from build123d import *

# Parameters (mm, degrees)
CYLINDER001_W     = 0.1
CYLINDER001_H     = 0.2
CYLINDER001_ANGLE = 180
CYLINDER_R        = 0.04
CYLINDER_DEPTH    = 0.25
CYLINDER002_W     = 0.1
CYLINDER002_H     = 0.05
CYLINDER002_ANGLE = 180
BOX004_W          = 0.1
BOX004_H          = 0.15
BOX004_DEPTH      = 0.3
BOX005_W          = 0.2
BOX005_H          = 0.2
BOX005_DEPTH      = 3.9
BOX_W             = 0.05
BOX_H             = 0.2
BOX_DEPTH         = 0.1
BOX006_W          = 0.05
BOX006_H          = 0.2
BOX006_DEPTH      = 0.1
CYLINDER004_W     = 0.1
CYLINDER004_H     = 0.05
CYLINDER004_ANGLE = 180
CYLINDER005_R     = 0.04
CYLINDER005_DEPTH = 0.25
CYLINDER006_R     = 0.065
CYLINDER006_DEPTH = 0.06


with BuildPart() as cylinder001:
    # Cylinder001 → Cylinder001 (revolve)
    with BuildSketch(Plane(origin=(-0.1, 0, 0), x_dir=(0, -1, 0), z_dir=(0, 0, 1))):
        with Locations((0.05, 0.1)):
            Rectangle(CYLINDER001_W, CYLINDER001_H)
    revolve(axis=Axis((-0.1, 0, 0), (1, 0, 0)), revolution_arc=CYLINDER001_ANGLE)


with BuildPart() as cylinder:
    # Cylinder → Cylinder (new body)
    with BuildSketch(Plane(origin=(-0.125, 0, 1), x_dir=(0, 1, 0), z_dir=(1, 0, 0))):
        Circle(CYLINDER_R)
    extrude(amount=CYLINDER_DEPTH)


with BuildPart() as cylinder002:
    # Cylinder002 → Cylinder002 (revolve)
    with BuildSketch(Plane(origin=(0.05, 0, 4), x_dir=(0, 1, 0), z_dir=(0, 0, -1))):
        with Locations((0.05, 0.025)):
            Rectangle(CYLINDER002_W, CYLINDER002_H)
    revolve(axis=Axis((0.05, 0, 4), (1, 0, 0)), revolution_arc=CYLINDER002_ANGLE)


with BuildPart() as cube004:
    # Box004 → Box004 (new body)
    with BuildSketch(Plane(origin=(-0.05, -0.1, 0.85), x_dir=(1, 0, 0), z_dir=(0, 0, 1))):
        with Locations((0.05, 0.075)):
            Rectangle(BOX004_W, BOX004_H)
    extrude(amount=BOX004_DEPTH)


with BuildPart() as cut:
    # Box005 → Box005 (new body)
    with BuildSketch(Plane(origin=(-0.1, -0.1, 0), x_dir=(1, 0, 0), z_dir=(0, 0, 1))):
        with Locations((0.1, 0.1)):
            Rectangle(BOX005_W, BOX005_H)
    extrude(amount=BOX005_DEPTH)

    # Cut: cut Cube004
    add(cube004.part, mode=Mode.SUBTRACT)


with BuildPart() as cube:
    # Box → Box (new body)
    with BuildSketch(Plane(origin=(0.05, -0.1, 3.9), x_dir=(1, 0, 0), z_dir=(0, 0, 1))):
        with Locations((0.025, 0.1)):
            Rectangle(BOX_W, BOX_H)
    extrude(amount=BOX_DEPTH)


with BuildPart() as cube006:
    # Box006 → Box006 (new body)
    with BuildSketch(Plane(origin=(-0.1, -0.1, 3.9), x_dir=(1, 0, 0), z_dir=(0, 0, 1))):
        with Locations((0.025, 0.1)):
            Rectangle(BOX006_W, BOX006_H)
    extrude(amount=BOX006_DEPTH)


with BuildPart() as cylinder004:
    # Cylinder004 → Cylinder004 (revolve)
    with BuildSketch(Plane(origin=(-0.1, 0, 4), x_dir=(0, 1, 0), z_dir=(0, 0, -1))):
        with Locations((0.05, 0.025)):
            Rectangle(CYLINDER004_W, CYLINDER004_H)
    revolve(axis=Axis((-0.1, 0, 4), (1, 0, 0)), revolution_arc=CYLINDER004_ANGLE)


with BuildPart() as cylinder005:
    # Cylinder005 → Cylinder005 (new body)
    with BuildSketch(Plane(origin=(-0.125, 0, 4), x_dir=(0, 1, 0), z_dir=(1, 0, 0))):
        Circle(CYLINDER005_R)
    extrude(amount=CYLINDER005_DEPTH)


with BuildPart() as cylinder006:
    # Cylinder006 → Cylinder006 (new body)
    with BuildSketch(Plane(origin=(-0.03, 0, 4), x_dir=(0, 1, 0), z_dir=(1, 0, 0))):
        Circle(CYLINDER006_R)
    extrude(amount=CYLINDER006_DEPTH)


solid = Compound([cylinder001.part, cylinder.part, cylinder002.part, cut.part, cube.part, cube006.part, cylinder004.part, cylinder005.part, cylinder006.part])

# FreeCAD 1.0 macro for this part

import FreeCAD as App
import Part
import Sketcher

doc = App.newDocument("Part")
body = doc.addObject("PartDesign::Body", "Body")

sketch1 = body.newObject("Sketcher::SketchObject", "Sketch")
sketch1.AttachmentSupport = (doc.getObject("XY_Plane"), [""])
sketch1.MapMode = "FlatFace"
sketch1.addGeometry([
    Part.LineSegment(App.Vector(0.1, 0, 0), App.Vector(-0.1, 0, 0)),
    Part.LineSegment(App.Vector(-0.1, 0, 0), App.Vector(-0.1, -0.1, 0)),
    Part.LineSegment(App.Vector(-0.1, -0.1, 0), App.Vector(0.1, -0.1, 0)),
    Part.LineSegment(App.Vector(0.1, -0.1, 0), App.Vector(0.1, 0, 0)),
], False)
sketch1.addConstraint([
    Sketcher.Constraint("Coincident", 0, 2, 1, 1),
    Sketcher.Constraint("Coincident", 1, 2, 2, 1),
    Sketcher.Constraint("Coincident", 2, 2, 3, 1),
    Sketcher.Constraint("Coincident", 3, 2, 0, 1),
    Sketcher.Constraint("Horizontal", 0),
    Sketcher.Constraint("Vertical", 1),
    Sketcher.Constraint("Horizontal", 2),
    Sketcher.Constraint("Vertical", 3),
    Sketcher.Constraint("Symmetric", 0, 2, 3, 2, -1, 1),
    Sketcher.Constraint("DistanceX", 0, 2, 0, 1, 0.2),
    Sketcher.Constraint("DistanceY", 1, 2, 1, 1, 0.1),
])
revolution = body.newObject("PartDesign::Revolution", "Revolution")
revolution.Profile = sketch1
revolution.ReferenceAxis = (sketch1, ["H_Axis"])
revolution.Angle = 180
body2 = doc.addObject("PartDesign::Body", "Body001")

sketch2 = body2.newObject("Sketcher::SketchObject", "Sketch001")
sketch2.AttachmentSupport = (doc.getObject("YZ_Plane001"), [""])
sketch2.MapMode = "FlatFace"
sketch2.AttachmentOffset = App.Placement(App.Vector(0, 0, -0.125), App.Rotation())
sketch2.addGeometry(Part.Circle(App.Vector(0, 1, 0), App.Vector(0, 0, 1), 0.04), False)
sketch2.addConstraint([
    Sketcher.Constraint("PointOnObject", 0, 3, -2),
    Sketcher.Constraint("Diameter", 0, 0.08),
    Sketcher.Constraint("DistanceY", -1, 1, 0, 3, 1.0),
])
pad1 = body2.newObject("PartDesign::Pad", "Pad")
pad1.Profile = sketch2
pad1.Length = 0.25
body3 = doc.addObject("PartDesign::Body", "Body002")

sketch3 = body3.newObject("Sketcher::SketchObject", "Sketch002")
sketch3.AttachmentSupport = (doc.getObject("XY_Plane002"), [""])
sketch3.MapMode = "FlatFace"
sketch3.AttachmentOffset = App.Placement(App.Vector(0, 0, 4), App.Rotation())
sketch3.addGeometry([
    Part.LineSegment(App.Vector(0.1, 0, 0), App.Vector(0.05, 0, 0)),
    Part.LineSegment(App.Vector(0.05, 0, 0), App.Vector(0.05, 0.1, 0)),
    Part.LineSegment(App.Vector(0.05, 0.1, 0), App.Vector(0.1, 0.1, 0)),
    Part.LineSegment(App.Vector(0.1, 0.1, 0), App.Vector(0.1, 0, 0)),
], False)
sketch3.addConstraint([
    Sketcher.Constraint("Coincident", 0, 2, 1, 1),
    Sketcher.Constraint("Coincident", 1, 2, 2, 1),
    Sketcher.Constraint("Coincident", 2, 2, 3, 1),
    Sketcher.Constraint("Coincident", 3, 2, 0, 1),
    Sketcher.Constraint("Horizontal", 0),
    Sketcher.Constraint("Vertical", 1),
    Sketcher.Constraint("Horizontal", 2),
    Sketcher.Constraint("Vertical", 3),
    Sketcher.Constraint("PointOnObject", 0, 2, -1),
    Sketcher.Constraint("DistanceY", 1, 1, 1, 2, 0.1),
    Sketcher.Constraint("DistanceX", 0, 2, 0, 1, 0.05),
    Sketcher.Constraint("DistanceX", -1, 1, 2, 2, 0.1),
])
revolution2 = body3.newObject("PartDesign::Revolution", "Revolution001")
revolution2.Profile = sketch3
revolution2.ReferenceAxis = (sketch3, ["H_Axis"])
revolution2.Angle = 180
body4 = doc.addObject("PartDesign::Body", "Body003")

sketch4 = body4.newObject("Sketcher::SketchObject", "Sketch003")
sketch4.AttachmentSupport = (doc.getObject("XY_Plane003"), [""])
sketch4.MapMode = "FlatFace"
sketch4.AttachmentOffset = App.Placement(App.Vector(0, 0, 0.85), App.Rotation())
sketch4.addGeometry([
    Part.LineSegment(App.Vector(-0.05, 0.05, 0), App.Vector(-0.05, -0.1, 0)),
    Part.LineSegment(App.Vector(-0.05, -0.1, 0), App.Vector(0.05, -0.1, 0)),
    Part.LineSegment(App.Vector(0.05, -0.1, 0), App.Vector(0.05, 0.05, 0)),
    Part.LineSegment(App.Vector(0.05, 0.05, 0), App.Vector(-0.05, 0.05, 0)),
], False)
sketch4.addConstraint([
    Sketcher.Constraint("Coincident", 0, 2, 1, 1),
    Sketcher.Constraint("Coincident", 1, 2, 2, 1),
    Sketcher.Constraint("Coincident", 2, 2, 3, 1),
    Sketcher.Constraint("Coincident", 3, 2, 0, 1),
    Sketcher.Constraint("Vertical", 0),
    Sketcher.Constraint("Horizontal", 1),
    Sketcher.Constraint("Vertical", 2),
    Sketcher.Constraint("Horizontal", 3),
    Sketcher.Constraint("DistanceX", 1, 1, 1, 2, 0.1),
    Sketcher.Constraint("DistanceY", 0, 2, 0, 1, 0.15),
    Sketcher.Constraint("DistanceY", 0, 2, -1, 1, 0.1),
    Sketcher.Constraint("DistanceX", 0, 2, -1, 1, 0.05),
])
pad2 = body4.newObject("PartDesign::Pad", "Pad001")
pad2.Profile = sketch4
pad2.Length = 0.3
body5 = doc.addObject("PartDesign::Body", "Body004")

sketch5 = body5.newObject("Sketcher::SketchObject", "Sketch004")
sketch5.AttachmentSupport = (doc.getObject("XY_Plane004"), [""])
sketch5.MapMode = "FlatFace"
sketch5.addGeometry([
    Part.LineSegment(App.Vector(-0.1, 0.1, 0), App.Vector(-0.1, -0.1, 0)),
    Part.LineSegment(App.Vector(-0.1, -0.1, 0), App.Vector(0.1, -0.1, 0)),
    Part.LineSegment(App.Vector(0.1, -0.1, 0), App.Vector(0.1, 0.1, 0)),
    Part.LineSegment(App.Vector(0.1, 0.1, 0), App.Vector(-0.1, 0.1, 0)),
], False)
sketch5.addConstraint([
    Sketcher.Constraint("Coincident", 0, 2, 1, 1),
    Sketcher.Constraint("Coincident", 1, 2, 2, 1),
    Sketcher.Constraint("Coincident", 2, 2, 3, 1),
    Sketcher.Constraint("Coincident", 3, 2, 0, 1),
    Sketcher.Constraint("Vertical", 0),
    Sketcher.Constraint("Horizontal", 1),
    Sketcher.Constraint("Vertical", 2),
    Sketcher.Constraint("Horizontal", 3),
    Sketcher.Constraint("Symmetric", 0, 2, 2, 2, -1, 1),
    Sketcher.Constraint("Equal", 3, 0),
    Sketcher.Constraint("DistanceX", 1, 1, 1, 2, 0.2),
])
pad3 = body5.newObject("PartDesign::Pad", "Pad002")
pad3.Profile = sketch5
pad3.Length = 3.9
doc.recompute()

boolean = body5.newObject("PartDesign::Boolean", "Boolean")
boolean.Type = "Cut"
boolean.addObjects([body4])
body6 = doc.addObject("PartDesign::Body", "Body005")

sketch6 = body6.newObject("Sketcher::SketchObject", "Sketch005")
sketch6.AttachmentSupport = (doc.getObject("XY_Plane005"), [""])
sketch6.MapMode = "FlatFace"
sketch6.AttachmentOffset = App.Placement(App.Vector(0, 0, 3.9), App.Rotation())
sketch6.addGeometry([
    Part.LineSegment(App.Vector(0.05, 0.1, 0), App.Vector(0.05, -0.1, 0)),
    Part.LineSegment(App.Vector(0.05, -0.1, 0), App.Vector(0.1, -0.1, 0)),
    Part.LineSegment(App.Vector(0.1, -0.1, 0), App.Vector(0.1, 0.1, 0)),
    Part.LineSegment(App.Vector(0.1, 0.1, 0), App.Vector(0.05, 0.1, 0)),
], False)
sketch6.addConstraint([
    Sketcher.Constraint("Coincident", 0, 2, 1, 1),
    Sketcher.Constraint("Coincident", 1, 2, 2, 1),
    Sketcher.Constraint("Coincident", 2, 2, 3, 1),
    Sketcher.Constraint("Coincident", 3, 2, 0, 1),
    Sketcher.Constraint("Vertical", 0),
    Sketcher.Constraint("Horizontal", 1),
    Sketcher.Constraint("Vertical", 2),
    Sketcher.Constraint("Horizontal", 3),
    Sketcher.Constraint("DistanceY", 0, 2, 0, 1, 0.2),
    Sketcher.Constraint("DistanceX", 1, 1, 1, 2, 0.05),
    Sketcher.Constraint("DistanceY", 0, 2, -1, 1, 0.1),
    Sketcher.Constraint("DistanceX", -1, 1, 1, 2, 0.1),
])
pad4 = body6.newObject("PartDesign::Pad", "Pad003")
pad4.Profile = sketch6
pad4.Length = 0.1
body7 = doc.addObject("PartDesign::Body", "Body006")

sketch7 = body7.newObject("Sketcher::SketchObject", "Sketch006")
sketch7.AttachmentSupport = (doc.getObject("XY_Plane006"), [""])
sketch7.MapMode = "FlatFace"
sketch7.AttachmentOffset = App.Placement(App.Vector(0, 0, 3.9), App.Rotation())
sketch7.addGeometry([
    Part.LineSegment(App.Vector(-0.1, 0.1, 0), App.Vector(-0.1, -0.1, 0)),
    Part.LineSegment(App.Vector(-0.1, -0.1, 0), App.Vector(-0.05, -0.1, 0)),
    Part.LineSegment(App.Vector(-0.05, -0.1, 0), App.Vector(-0.05, 0.1, 0)),
    Part.LineSegment(App.Vector(-0.05, 0.1, 0), App.Vector(-0.1, 0.1, 0)),
], False)
sketch7.addConstraint([
    Sketcher.Constraint("Coincident", 0, 2, 1, 1),
    Sketcher.Constraint("Coincident", 1, 2, 2, 1),
    Sketcher.Constraint("Coincident", 2, 2, 3, 1),
    Sketcher.Constraint("Coincident", 3, 2, 0, 1),
    Sketcher.Constraint("Vertical", 0),
    Sketcher.Constraint("Horizontal", 1),
    Sketcher.Constraint("Vertical", 2),
    Sketcher.Constraint("Horizontal", 3),
    Sketcher.Constraint("DistanceY", 0, 2, 0, 1, 0.2),
    Sketcher.Constraint("DistanceX", 1, 1, 1, 2, 0.05),
    Sketcher.Constraint("DistanceX", 0, 2, -1, 1, 0.1),
    Sketcher.Constraint("DistanceY", 0, 2, -1, 1, 0.1),
])
pad5 = body7.newObject("PartDesign::Pad", "Pad004")
pad5.Profile = sketch7
pad5.Length = 0.1
body8 = doc.addObject("PartDesign::Body", "Body007")

sketch8 = body8.newObject("Sketcher::SketchObject", "Sketch007")
sketch8.AttachmentSupport = (doc.getObject("XY_Plane007"), [""])
sketch8.MapMode = "FlatFace"
sketch8.AttachmentOffset = App.Placement(App.Vector(0, 0, 4), App.Rotation())
sketch8.addGeometry([
    Part.LineSegment(App.Vector(-0.05, 0, 0), App.Vector(-0.1, 0, 0)),
    Part.LineSegment(App.Vector(-0.1, 0, 0), App.Vector(-0.1, 0.1, 0)),
    Part.LineSegment(App.Vector(-0.1, 0.1, 0), App.Vector(-0.05, 0.1, 0)),
    Part.LineSegment(App.Vector(-0.05, 0.1, 0), App.Vector(-0.05, 0, 0)),
], False)
sketch8.addConstraint([
    Sketcher.Constraint("Coincident", 0, 2, 1, 1),
    Sketcher.Constraint("Coincident", 1, 2, 2, 1),
    Sketcher.Constraint("Coincident", 2, 2, 3, 1),
    Sketcher.Constraint("Coincident", 3, 2, 0, 1),
    Sketcher.Constraint("Horizontal", 0),
    Sketcher.Constraint("Vertical", 1),
    Sketcher.Constraint("Horizontal", 2),
    Sketcher.Constraint("Vertical", 3),
    Sketcher.Constraint("PointOnObject", 0, 2, -1),
    Sketcher.Constraint("DistanceY", 1, 1, 1, 2, 0.1),
    Sketcher.Constraint("DistanceX", 0, 2, 0, 1, 0.05),
    Sketcher.Constraint("DistanceX", 0, 2, -1, 1, 0.1),
])
revolution3 = body8.newObject("PartDesign::Revolution", "Revolution002")
revolution3.Profile = sketch8
revolution3.ReferenceAxis = (sketch8, ["H_Axis"])
revolution3.Angle = 180
body9 = doc.addObject("PartDesign::Body", "Body008")

sketch9 = body9.newObject("Sketcher::SketchObject", "Sketch008")
sketch9.AttachmentSupport = (doc.getObject("YZ_Plane008"), [""])
sketch9.MapMode = "FlatFace"
sketch9.AttachmentOffset = App.Placement(App.Vector(0, 0, -0.125), App.Rotation())
sketch9.addGeometry(Part.Circle(App.Vector(0, 4, 0), App.Vector(0, 0, 1), 0.04), False)
sketch9.addConstraint([
    Sketcher.Constraint("PointOnObject", 0, 3, -2),
    Sketcher.Constraint("Diameter", 0, 0.08),
    Sketcher.Constraint("DistanceY", -1, 1, 0, 3, 4.0),
])
pad6 = body9.newObject("PartDesign::Pad", "Pad005")
pad6.Profile = sketch9
pad6.Length = 0.25
body10 = doc.addObject("PartDesign::Body", "Body009")

sketch10 = body10.newObject("Sketcher::SketchObject", "Sketch009")
sketch10.AttachmentSupport = (doc.getObject("YZ_Plane009"), [""])
sketch10.MapMode = "FlatFace"
sketch10.AttachmentOffset = App.Placement(App.Vector(0, 0, -0.03), App.Rotation())
sketch10.addGeometry(Part.Circle(App.Vector(0, 4, 0), App.Vector(0, 0, 1), 0.065), False)
sketch10.addConstraint([
    Sketcher.Constraint("PointOnObject", 0, 3, -2),
    Sketcher.Constraint("Diameter", 0, 0.13),
    Sketcher.Constraint("DistanceY", -1, 1, 0, 3, 4.0),
])
pad7 = body10.newObject("PartDesign::Pad", "Pad006")
pad7.Profile = sketch10
pad7.Length = 0.06

doc.recompute()
